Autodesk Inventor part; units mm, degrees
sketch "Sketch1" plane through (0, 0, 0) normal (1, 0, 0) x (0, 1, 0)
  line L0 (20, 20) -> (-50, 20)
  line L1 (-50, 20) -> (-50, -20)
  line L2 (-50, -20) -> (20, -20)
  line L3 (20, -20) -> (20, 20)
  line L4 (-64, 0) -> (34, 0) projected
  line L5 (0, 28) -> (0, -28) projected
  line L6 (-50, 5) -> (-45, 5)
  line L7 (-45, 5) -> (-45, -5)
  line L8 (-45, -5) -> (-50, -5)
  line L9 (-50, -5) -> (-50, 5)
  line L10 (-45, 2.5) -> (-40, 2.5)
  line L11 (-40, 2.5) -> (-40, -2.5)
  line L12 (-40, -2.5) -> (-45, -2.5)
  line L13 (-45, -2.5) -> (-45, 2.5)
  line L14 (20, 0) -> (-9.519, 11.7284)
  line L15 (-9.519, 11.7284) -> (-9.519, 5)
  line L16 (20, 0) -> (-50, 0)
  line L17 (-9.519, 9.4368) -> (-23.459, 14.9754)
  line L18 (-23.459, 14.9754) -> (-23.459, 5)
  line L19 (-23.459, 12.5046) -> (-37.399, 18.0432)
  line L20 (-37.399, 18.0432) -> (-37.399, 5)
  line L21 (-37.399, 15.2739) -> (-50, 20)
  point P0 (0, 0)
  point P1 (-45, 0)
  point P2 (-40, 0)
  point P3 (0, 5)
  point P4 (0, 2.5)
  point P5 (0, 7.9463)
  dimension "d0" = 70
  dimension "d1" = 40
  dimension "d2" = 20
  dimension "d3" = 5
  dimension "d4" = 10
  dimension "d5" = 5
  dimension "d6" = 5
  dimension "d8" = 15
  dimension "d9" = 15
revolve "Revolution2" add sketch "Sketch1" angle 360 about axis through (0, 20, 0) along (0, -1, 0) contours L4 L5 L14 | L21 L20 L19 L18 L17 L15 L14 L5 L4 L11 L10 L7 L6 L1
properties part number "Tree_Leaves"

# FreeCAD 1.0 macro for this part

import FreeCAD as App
import Part
import Sketcher

doc = App.newDocument("Part")
body = doc.addObject("PartDesign::Body", "Body")

# Sketch on YZ plane
sketch1 = body.newObject("Sketcher::SketchObject", "Sketch")
sketch1.AttachmentSupport = (doc.getObject("YZ_Plane"), [""])
sketch1.MapMode = "FlatFace"
sketch1.addGeometry([
    Part.LineSegment(App.Vector(20, 0, 0), App.Vector(-9.519, 11.7284, 0)),  # 0
    Part.LineSegment(App.Vector(-9.519, 11.7284, 0), App.Vector(-9.519, 9.4368, 0)),  # 1
    Part.LineSegment(App.Vector(-9.519, 9.4368, 0), App.Vector(-23.459, 14.9754, 0)),  # 2
    Part.LineSegment(App.Vector(-23.459, 14.9754, 0), App.Vector(-23.459, 12.5046, 0)),  # 3
    Part.LineSegment(App.Vector(-23.459, 12.5046, 0), App.Vector(-37.399, 18.0432, 0)),  # 4
    Part.LineSegment(App.Vector(-37.399, 18.0432, 0), App.Vector(-37.399, 15.2739, 0)),  # 5
    Part.LineSegment(App.Vector(-37.399, 15.2739, 0), App.Vector(-50, 20, 0)),  # 6
    Part.LineSegment(App.Vector(-50, 20, 0), App.Vector(-50, 5, 0)),  # 7
    Part.LineSegment(App.Vector(-50, 5, 0), App.Vector(-45, 5, 0)),  # 8
    Part.LineSegment(App.Vector(-45, 5, 0), App.Vector(-45, 2.5, 0)),  # 9
    Part.LineSegment(App.Vector(-45, 2.5, 0), App.Vector(-40, 2.5, 0)),  # 10
    Part.LineSegment(App.Vector(-40, 2.5, 0), App.Vector(-40, 0, 0)),  # 11
    Part.LineSegment(App.Vector(-40, 0, 0), App.Vector(20, 0, 0)),  # 12
], False)
sketch1.addConstraint([
    Sketcher.Constraint("Coincident", 0, 2, 1, 1),
    Sketcher.Constraint("Coincident", 1, 2, 2, 1),
    Sketcher.Constraint("Coincident", 2, 2, 3, 1),
    Sketcher.Constraint("Coincident", 3, 2, 4, 1),
    Sketcher.Constraint("Coincident", 4, 2, 5, 1),
    Sketcher.Constraint("Coincident", 5, 2, 6, 1),
    Sketcher.Constraint("Coincident", 6, 2, 7, 1),
    Sketcher.Constraint("Coincident", 7, 2, 8, 1),
    Sketcher.Constraint("Coincident", 8, 2, 9, 1),
    Sketcher.Constraint("Coincident", 9, 2, 10, 1),
    Sketcher.Constraint("Coincident", 10, 2, 11, 1),
    Sketcher.Constraint("Coincident", 11, 2, 12, 1),
    Sketcher.Constraint("Coincident", 12, 2, 0, 1),
    Sketcher.Constraint("Vertical", 1),
    Sketcher.Constraint("Vertical", 3),
    Sketcher.Constraint("Vertical", 5),
    Sketcher.Constraint("Vertical", 7),
    Sketcher.Constraint("Horizontal", 8),
    Sketcher.Constraint("Vertical", 9),
    Sketcher.Constraint("Horizontal", 10),
    Sketcher.Constraint("Vertical", 11),
    Sketcher.Constraint("Horizontal", 12),
    Sketcher.Constraint("PointOnObject", 11, 2, -1),
    Sketcher.Constraint("DistanceX", 8, 1, 8, 2, 5.0),
    Sketcher.Constraint("DistanceX", 10, 1, 10, 2, 5.0),
    Sketcher.Constraint("DistanceY", 7, 2, 7, 1, 15.0),
    Sketcher.Constraint("Distance", 2, 15.0),
    Sketcher.Constraint("Distance", 4, 15.0),
    Sketcher.Constraint("DistanceY", -1, 1, 6, 2, 20.0),
    Sketcher.Constraint("DistanceX", 10, 2, -1, 1, 40.0),
    Sketcher.Constraint("DistanceX", -1, 1, 12, 2, 20.0),
    Sketcher.Constraint("DistanceY", 9, 2, 9, 1, 2.5),
    Sketcher.Constraint("DistanceX", 2, 2, 0, 2, 13.94),
    Sketcher.Constraint("DistanceX", 4, 2, 2, 2, 13.94),
    Sketcher.Constraint("DistanceY", 1, 2, 1, 1, 2.2916),
    Sketcher.Constraint("DistanceY", 3, 2, 3, 1, 2.4708),
    Sketcher.Constraint("DistanceY", 5, 2, 5, 1, 2.7693),
    Sketcher.Constraint("DistanceX", 0, 2, -1, 1, 9.519),
    Sketcher.Constraint("DistanceY", -1, 1, 5, 2, 15.274),
])
revolution = body.newObject("PartDesign::Revolution", "Revolution")
revolution.Profile = sketch1
revolution.ReferenceAxis = (sketch1, ["H_Axis"])
revolution.Angle = 360

doc.recompute()
